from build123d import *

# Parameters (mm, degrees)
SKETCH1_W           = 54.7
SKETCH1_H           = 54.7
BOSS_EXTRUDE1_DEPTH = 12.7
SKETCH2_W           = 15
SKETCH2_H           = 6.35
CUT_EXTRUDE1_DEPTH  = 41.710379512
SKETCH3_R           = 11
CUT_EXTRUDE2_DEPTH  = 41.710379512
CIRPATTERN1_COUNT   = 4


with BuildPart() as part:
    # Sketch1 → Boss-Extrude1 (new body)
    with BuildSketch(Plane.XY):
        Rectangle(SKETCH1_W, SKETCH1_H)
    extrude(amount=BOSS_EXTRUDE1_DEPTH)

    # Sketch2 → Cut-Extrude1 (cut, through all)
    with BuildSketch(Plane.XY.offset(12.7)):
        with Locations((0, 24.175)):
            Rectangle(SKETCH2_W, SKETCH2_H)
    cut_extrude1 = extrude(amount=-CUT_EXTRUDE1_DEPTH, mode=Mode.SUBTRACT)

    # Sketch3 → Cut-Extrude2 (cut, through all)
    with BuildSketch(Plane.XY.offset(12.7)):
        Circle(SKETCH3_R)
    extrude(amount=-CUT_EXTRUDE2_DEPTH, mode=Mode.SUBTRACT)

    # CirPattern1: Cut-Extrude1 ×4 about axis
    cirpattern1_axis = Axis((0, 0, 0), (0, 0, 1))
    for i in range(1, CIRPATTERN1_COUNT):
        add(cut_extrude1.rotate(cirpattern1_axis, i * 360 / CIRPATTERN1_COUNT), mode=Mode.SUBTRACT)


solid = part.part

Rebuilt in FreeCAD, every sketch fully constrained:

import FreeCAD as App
import Part
import Sketcher
from FreeCAD import Vector

doc = App.newDocument("Part")
params = doc.addObject("Spreadsheet::Sheet", "Params")
for row, (alias, value) in enumerate([
    ("sketch1_width", "54.7 mm"),
    ("pad1_length", "12.7 mm"),
    ("sketch2_width", "15 mm"),
    ("sketch2_height", "6.35 mm"),
    ("sketch3_diameter", "22 mm"),
], start=1):
    params.set(f"A{row}", alias)
    params.set(f"B{row}", "=" + value)
    params.setAlias(f"B{row}", alias)

body = doc.addObject("PartDesign::Body", "Body")

# Sketch on XY plane
sketch1 = body.newObject("Sketcher::SketchObject", "Sketch")
sketch1.AttachmentSupport = (doc.getObject("XY_Plane"), [""])
sketch1.MapMode = "FlatFace"
sketch1.addGeometry([
    Part.LineSegment(Vector(-27, 27, 0), Vector(-27, -27, 0)),
    Part.LineSegment(Vector(-27, -27, 0), Vector(27, -27, 0)),
    Part.LineSegment(Vector(27, -27, 0), Vector(27, 27, 0)),
    Part.LineSegment(Vector(27, 27, 0), Vector(-27, 27, 0)),
], False)
sketch1.addConstraint([
    Sketcher.Constraint("Coincident", 0, 2, 1, 1),
    Sketcher.Constraint("Coincident", 1, 2, 2, 1),
    Sketcher.Constraint("Coincident", 2, 2, 3, 1),
    Sketcher.Constraint("Coincident", 3, 2, 0, 1),
    Sketcher.Constraint("Vertical", 0),
    Sketcher.Constraint("Horizontal", 1),
    Sketcher.Constraint("Vertical", 2),
    Sketcher.Constraint("Horizontal", 3),
    Sketcher.Constraint("Symmetric", 0, 2, 2, 2, -1, 1),
    Sketcher.Constraint("Equal", 3, 0),
    Sketcher.Constraint("DistanceX", 1, 1, 1, 2, 54.7),
])
sketch1.setExpression("Constraints[10]", "Params.sketch1_width")
pad1 = body.newObject("PartDesign::Pad", "Pad")
pad1.Profile = sketch1
pad1.setExpression("Length", "Params.pad1_length")

# Sketch on XY plane
sketch2 = body.newObject("Sketcher::SketchObject", "Sketch001")
sketch2.AttachmentSupport = (doc.getObject("XY_Plane"), [""])
sketch2.MapMode = "FlatFace"
sketch2.AttachmentOffset = App.Placement(Vector(0, 0, 12.7), App.Rotation())
sketch2.addGeometry([
    Part.LineSegment(Vector(-8, 27, 0), Vector(-8, 21, 0)),
    Part.LineSegment(Vector(-8, 21, 0), Vector(8, 21, 0)),
    Part.LineSegment(Vector(8, 21, 0), Vector(8, 27, 0)),
    Part.LineSegment(Vector(8, 27, 0), Vector(-8, 27, 0)),
], False)
sketch2.addConstraint([
    Sketcher.Constraint("Coincident", 0, 2, 1, 1),
    Sketcher.Constraint("Coincident", 1, 2, 2, 1),
    Sketcher.Constraint("Coincident", 2, 2, 3, 1),
    Sketcher.Constraint("Coincident", 3, 2, 0, 1),
    Sketcher.Constraint("Vertical", 0),
    Sketcher.Constraint("Horizontal", 1),
    Sketcher.Constraint("Vertical", 2),
    Sketcher.Constraint("Horizontal", 3),
    Sketcher.Constraint("DistanceX", 1, 1, 1, 2, 15.0),
    Sketcher.Constraint("DistanceY", -1, 1, 0, 2, 21.0),
    Sketcher.Constraint("DistanceY", 0, 2, 0, 1, 6.35),
    Sketcher.Constraint("DistanceX", 0, 2, -1, 1, 7.5),
])
sketch2.setExpression("Constraints[8]", "Params.sketch2_width")
sketch2.setExpression("Constraints[10]", "Params.sketch2_height")
pocket1 = body.newObject("PartDesign::Pocket", "Pocket")
pocket1.Profile = sketch2
pocket1.Type = "ThroughAll"

# Sketch on XY plane
sketch3 = body.newObject("Sketcher::SketchObject", "Sketch002")
sketch3.AttachmentSupport = (doc.getObject("XY_Plane"), [""])
sketch3.MapMode = "FlatFace"
sketch3.AttachmentOffset = App.Placement(Vector(0, 0, 12.7), App.Rotation())
sketch3.addGeometry(Part.Circle(Vector(0, 0, 0), Vector(0, 0, 1), 11), False)
sketch3.addConstraint([
    Sketcher.Constraint("Coincident", 0, 3, -1, 1),
    Sketcher.Constraint("Diameter", 0, 22.0),
])
sketch3.setExpression("Constraints[1]", "Params.sketch3_diameter")
pocket2 = body.newObject("PartDesign::Pocket", "Pocket001")
pocket2.Profile = sketch3
pocket2.Type = "ThroughAll"
doc.recompute()

polarpattern = body.newObject("PartDesign::PolarPattern", "PolarPattern")
polarpattern.Originals = [pocket1]
polarpattern.Axis = (doc.getObject("Z_Axis"), [""])
polarpattern.Angle = 360
polarpattern.Occurrences = 4
body.Tip = polarpattern

doc.recompute()
